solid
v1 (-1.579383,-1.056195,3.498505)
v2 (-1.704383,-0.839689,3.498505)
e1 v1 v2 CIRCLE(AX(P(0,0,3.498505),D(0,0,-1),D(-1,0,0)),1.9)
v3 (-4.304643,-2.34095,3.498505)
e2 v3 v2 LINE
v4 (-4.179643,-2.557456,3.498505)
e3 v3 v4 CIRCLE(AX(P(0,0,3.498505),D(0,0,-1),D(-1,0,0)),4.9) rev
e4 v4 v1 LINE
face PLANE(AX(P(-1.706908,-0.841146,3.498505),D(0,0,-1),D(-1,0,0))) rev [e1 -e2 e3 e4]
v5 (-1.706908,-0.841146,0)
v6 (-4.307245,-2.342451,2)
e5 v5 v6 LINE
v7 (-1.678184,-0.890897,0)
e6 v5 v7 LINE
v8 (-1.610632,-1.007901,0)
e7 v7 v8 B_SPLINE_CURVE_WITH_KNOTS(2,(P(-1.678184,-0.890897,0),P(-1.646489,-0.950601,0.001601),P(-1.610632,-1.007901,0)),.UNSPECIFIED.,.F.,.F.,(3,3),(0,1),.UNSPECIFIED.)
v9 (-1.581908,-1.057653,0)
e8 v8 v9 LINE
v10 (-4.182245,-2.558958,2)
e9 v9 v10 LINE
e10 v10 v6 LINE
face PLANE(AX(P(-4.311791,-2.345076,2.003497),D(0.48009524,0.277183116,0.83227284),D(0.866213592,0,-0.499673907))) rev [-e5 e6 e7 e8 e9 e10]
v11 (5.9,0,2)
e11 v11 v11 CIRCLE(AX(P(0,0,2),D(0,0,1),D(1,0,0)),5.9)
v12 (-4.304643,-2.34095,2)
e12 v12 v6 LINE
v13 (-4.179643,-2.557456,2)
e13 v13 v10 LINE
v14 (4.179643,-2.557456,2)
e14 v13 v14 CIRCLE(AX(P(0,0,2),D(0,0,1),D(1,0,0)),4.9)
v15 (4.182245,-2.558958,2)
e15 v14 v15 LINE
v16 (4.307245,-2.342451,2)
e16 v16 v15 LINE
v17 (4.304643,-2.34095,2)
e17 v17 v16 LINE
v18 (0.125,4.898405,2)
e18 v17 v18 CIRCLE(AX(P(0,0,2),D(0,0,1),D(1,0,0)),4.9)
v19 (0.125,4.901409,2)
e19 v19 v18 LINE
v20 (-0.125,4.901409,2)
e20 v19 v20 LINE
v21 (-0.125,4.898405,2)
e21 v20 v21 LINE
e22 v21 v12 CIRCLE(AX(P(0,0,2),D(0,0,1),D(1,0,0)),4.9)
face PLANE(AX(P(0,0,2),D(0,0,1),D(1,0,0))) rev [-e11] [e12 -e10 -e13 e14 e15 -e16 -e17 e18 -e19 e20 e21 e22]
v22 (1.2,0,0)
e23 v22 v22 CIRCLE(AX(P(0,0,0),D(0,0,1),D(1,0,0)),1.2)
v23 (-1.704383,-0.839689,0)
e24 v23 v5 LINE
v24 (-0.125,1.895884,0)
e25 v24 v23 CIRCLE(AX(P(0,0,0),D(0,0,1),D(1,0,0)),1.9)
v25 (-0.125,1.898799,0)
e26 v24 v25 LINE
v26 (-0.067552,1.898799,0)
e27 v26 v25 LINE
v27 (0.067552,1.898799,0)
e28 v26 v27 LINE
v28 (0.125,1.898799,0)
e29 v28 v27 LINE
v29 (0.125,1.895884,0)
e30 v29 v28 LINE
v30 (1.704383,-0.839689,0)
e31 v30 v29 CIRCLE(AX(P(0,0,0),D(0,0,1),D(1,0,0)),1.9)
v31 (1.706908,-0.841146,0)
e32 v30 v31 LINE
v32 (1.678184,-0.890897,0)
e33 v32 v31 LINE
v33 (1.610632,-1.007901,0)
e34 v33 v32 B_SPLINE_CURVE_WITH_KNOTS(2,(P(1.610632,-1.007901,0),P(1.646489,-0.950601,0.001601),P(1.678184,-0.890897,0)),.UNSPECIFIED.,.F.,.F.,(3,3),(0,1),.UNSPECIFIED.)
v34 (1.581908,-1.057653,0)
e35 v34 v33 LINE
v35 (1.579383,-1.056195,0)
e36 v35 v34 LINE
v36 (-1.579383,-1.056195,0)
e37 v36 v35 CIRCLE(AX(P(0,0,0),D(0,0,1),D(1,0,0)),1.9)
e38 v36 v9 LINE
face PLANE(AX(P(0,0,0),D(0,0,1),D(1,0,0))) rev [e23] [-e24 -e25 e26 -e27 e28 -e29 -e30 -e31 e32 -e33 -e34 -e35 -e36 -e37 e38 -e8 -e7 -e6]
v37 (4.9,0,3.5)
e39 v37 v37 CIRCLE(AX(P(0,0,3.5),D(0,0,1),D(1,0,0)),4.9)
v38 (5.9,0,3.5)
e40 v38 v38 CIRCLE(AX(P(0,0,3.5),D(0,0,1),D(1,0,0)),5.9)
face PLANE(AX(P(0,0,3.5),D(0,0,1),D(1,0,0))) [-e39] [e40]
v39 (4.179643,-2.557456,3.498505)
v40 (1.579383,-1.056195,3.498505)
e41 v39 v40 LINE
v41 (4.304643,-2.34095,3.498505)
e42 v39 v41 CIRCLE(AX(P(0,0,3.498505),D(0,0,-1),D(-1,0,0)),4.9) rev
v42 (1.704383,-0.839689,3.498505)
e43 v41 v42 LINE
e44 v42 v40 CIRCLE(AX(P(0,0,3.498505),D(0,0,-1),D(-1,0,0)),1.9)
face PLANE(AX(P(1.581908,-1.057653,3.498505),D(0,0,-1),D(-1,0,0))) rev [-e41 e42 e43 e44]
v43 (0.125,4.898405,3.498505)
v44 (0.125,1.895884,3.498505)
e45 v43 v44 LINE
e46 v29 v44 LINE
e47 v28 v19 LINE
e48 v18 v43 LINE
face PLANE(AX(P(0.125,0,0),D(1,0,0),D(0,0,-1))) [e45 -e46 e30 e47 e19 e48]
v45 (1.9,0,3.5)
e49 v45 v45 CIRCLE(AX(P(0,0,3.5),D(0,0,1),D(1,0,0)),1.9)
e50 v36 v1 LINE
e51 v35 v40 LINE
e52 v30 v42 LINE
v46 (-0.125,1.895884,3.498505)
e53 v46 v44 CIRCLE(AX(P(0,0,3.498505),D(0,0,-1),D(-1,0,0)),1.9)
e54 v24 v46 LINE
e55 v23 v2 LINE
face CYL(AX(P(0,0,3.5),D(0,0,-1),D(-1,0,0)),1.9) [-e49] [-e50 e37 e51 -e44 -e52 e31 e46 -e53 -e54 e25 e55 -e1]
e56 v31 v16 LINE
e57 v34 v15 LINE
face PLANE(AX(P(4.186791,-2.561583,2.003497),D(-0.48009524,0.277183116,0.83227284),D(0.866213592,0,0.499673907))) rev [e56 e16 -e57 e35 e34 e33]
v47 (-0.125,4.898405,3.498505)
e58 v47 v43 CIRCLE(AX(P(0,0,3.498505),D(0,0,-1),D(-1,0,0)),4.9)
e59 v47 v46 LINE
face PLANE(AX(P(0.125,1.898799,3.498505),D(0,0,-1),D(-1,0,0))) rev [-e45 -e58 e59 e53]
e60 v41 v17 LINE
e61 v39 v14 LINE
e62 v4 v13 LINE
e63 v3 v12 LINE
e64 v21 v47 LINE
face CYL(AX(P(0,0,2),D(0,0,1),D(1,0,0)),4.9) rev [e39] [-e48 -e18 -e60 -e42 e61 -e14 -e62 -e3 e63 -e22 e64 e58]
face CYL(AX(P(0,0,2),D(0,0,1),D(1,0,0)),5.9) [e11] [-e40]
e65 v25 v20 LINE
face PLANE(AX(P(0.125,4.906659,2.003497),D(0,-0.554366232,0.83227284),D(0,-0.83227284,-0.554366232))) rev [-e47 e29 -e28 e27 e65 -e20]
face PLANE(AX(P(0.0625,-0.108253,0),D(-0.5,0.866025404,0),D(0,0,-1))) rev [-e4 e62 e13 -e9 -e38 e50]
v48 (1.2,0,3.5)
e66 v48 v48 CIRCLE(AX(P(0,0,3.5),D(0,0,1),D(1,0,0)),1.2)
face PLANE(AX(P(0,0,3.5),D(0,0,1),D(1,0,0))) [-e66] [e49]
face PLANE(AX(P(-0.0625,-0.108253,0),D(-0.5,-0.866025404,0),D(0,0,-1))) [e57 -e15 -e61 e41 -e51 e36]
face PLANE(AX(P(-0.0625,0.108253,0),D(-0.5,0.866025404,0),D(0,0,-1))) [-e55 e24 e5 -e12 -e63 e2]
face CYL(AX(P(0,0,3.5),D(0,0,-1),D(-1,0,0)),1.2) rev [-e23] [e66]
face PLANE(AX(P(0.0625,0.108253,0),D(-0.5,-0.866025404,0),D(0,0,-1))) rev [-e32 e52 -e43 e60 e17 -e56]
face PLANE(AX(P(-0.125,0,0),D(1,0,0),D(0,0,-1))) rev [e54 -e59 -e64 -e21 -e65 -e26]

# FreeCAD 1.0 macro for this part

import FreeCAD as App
import Part
import Sketcher

V = App.Vector
Q = App.Units.Quantity


def add_polygon(sketch, points):
    """Adds a closed chain of lines whose ends are joined by coincident constraints."""
    first, n = sketch.GeometryCount, len(points)
    for a, b in zip(points, points[1:] + points[:1]):
        sketch.addGeometry(Part.LineSegment(App.Vector(*a, 0), App.Vector(*b, 0)), False)
    for i in range(n):
        sketch.addConstraint(Sketcher.Constraint("Coincident", first + i, 2, first + (i + 1) % n, 1))

doc = App.newDocument("Part")
body = doc.addObject("PartDesign::Body", "Body")

sketch1 = body.newObject("Sketcher::SketchObject", "Sketch")
sketch1.AttachmentSupport = (doc.getObject("XY_Plane"), [""])
sketch1.MapMode = "FlatFace"
sketch1.addGeometry(Part.Circle(V(0, 0, 0), V(0, 0, 1), 1.9), False)
sketch1.addGeometry(Part.Circle(V(0, 0, 0), V(0, 0, 1), 1.2), False)
sketch1.addConstraint(Sketcher.Constraint("Coincident", 0, 3, -1, 1))
sketch1.addConstraint(Sketcher.Constraint("Coincident", 1, 3, -1, 1))
sketch1.addConstraint(Sketcher.Constraint("Diameter", 0, Q("3.8 mm")))
sketch1.addConstraint(Sketcher.Constraint("Diameter", 1, Q("2.4 mm")))
pad1 = body.newObject("PartDesign::Pad", "Pad")
pad1.Profile = sketch1
pad1.Length = 3.5
body2 = doc.addObject("PartDesign::Body", "Body001")

sketch2 = body2.newObject("Sketcher::SketchObject", "Sketch001")
sketch2.AttachmentSupport = (doc.getObject("XY_Plane001"), [""])
sketch2.MapMode = "FlatFace"
sketch2.AttachmentOffset = App.Placement(V(0, 0, 3.5), App.Rotation())
sketch2.addGeometry(Part.Circle(V(0, 0, 0), V(0, 0, 1), 5.9), False)
sketch2.addGeometry(Part.Circle(V(0, 0, 0), V(0, 0, 1), 4.9), False)
sketch2.addConstraint(Sketcher.Constraint("Coincident", 0, 3, -1, 1))
sketch2.addConstraint(Sketcher.Constraint("Coincident", 1, 3, -1, 1))
sketch2.addConstraint(Sketcher.Constraint("Diameter", 0, Q("11.8 mm")))
sketch2.addConstraint(Sketcher.Constraint("Diameter", 1, Q("9.8 mm")))
pad2 = body2.newObject("PartDesign::Pad", "Pad001")
pad2.Profile = sketch2
pad2.Length = 1.5
pad2.Reversed = True
body.AllowCompound = True
doc.recompute()

boolean = body.newObject("PartDesign::Boolean", "Boolean")
boolean.Type = "Fuse"
boolean.addObjects([body2])

sketch3 = body.newObject("Sketcher::SketchObject", "Sketch002")
sketch3.AttachmentSupport = (doc.getObject("YZ_Plane"), [""])
sketch3.MapMode = "FlatFace"
add_polygon(sketch3, [(4.91, 3.5), (1.7, 3.5), (1.7, 0), (1.9, 0), (4.91, 2)])
sketch3.addConstraint(Sketcher.Constraint("Horizontal", 0))
sketch3.addConstraint(Sketcher.Constraint("Vertical", 1))
sketch3.addConstraint(Sketcher.Constraint("Horizontal", 2))
sketch3.addConstraint(Sketcher.Constraint("Vertical", 4))
sketch3.addConstraint(Sketcher.Constraint("PointOnObject", 1, 2, -1))
sketch3.addConstraint(Sketcher.Constraint("DistanceX", 2, 1, 2, 2, Q("0.2 mm")))
sketch3.addConstraint(Sketcher.Constraint("DistanceX", 0, 2, 0, 1, Q("3.20786 mm")))
sketch3.addConstraint(Sketcher.Constraint("DistanceY", 4, 1, 4, 2, Q("1.495008 mm")))
sketch3.addConstraint(Sketcher.Constraint("DistanceX", -1, 1, 0, 2, Q("1.698799 mm")))
sketch3.addConstraint(Sketcher.Constraint("Distance", 3, Q("3.614032 mm")))
pad3 = body.newObject("PartDesign::Pad", "Pad002")
pad3.Profile = sketch3
pad3.Length = 0.25
pad3.Midplane = True
doc.recompute()

polarpattern = body.newObject("PartDesign::PolarPattern", "PolarPattern")
polarpattern.Originals = [pad3]
polarpattern.Axis = (doc.getObject("Z_Axis"), [""])
polarpattern.Angle = 360
polarpattern.Occurrences = 3
body.Tip = polarpattern

doc.recompute()
